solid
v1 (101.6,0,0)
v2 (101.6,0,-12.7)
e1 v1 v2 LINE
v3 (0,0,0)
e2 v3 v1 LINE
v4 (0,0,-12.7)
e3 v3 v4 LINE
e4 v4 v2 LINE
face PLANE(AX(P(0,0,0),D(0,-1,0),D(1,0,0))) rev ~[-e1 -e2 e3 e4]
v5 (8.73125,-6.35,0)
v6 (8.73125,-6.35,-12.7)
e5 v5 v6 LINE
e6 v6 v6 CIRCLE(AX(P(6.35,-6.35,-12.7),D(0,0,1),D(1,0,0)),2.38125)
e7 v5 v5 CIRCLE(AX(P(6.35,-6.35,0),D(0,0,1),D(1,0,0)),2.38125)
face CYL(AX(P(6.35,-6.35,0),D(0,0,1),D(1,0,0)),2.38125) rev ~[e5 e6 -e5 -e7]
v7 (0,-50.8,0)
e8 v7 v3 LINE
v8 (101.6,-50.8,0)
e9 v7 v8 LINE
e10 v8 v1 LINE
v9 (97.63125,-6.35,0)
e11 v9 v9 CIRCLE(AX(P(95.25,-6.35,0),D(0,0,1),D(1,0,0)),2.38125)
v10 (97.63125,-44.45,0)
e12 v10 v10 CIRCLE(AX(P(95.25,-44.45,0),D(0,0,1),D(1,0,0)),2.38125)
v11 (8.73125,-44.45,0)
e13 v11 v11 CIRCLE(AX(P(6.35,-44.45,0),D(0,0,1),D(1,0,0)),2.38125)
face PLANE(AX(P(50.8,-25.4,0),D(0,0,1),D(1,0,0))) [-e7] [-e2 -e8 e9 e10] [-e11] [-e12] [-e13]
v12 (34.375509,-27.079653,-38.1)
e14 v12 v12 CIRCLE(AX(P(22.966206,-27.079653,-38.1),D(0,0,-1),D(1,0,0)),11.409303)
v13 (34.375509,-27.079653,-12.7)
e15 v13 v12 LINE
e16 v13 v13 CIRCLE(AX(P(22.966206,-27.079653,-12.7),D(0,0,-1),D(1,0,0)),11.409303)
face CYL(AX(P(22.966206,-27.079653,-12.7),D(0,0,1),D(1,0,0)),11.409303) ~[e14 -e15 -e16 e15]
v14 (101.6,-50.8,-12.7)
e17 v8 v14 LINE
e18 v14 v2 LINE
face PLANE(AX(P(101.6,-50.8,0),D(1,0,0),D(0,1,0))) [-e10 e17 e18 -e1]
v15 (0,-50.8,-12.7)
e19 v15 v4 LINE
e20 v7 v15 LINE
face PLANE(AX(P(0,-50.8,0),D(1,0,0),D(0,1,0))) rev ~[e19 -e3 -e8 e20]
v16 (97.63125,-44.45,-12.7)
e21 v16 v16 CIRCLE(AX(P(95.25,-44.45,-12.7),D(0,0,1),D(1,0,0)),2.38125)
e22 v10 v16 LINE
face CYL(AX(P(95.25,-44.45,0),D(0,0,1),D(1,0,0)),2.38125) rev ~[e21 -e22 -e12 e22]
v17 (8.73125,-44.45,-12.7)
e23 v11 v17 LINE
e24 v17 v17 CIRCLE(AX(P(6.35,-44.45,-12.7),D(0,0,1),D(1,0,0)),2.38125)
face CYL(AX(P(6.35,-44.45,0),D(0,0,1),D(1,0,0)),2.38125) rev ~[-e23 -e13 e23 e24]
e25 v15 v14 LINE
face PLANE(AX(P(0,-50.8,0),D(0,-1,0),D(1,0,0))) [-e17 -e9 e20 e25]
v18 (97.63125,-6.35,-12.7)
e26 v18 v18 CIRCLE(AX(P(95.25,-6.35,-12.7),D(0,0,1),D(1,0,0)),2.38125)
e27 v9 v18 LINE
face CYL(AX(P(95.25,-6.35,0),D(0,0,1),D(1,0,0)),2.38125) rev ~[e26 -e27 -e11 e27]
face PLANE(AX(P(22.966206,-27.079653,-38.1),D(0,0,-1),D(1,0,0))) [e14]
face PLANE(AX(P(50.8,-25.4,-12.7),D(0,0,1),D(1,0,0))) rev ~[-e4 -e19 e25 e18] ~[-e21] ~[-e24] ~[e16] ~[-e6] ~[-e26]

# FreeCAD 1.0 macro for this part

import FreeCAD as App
import Part
import Sketcher
Q = App.Units.Quantity


def add_polygon(sketch, points):
    """Adds a closed chain of lines whose ends are joined by coincident constraints."""
    first, n = sketch.GeometryCount, len(points)
    for a, b in zip(points, points[1:] + points[:1]):
        sketch.addGeometry(Part.LineSegment(App.Vector(*a, 0), App.Vector(*b, 0)), False)
    for i in range(n):
        sketch.addConstraint(Sketcher.Constraint("Coincident", first + i, 2, first + (i + 1) % n, 1))

doc = App.newDocument("Part")
params = doc.addObject("Spreadsheet::Sheet", "Params")
for row, (alias, value) in enumerate([
    ("sketch1_width", "4 in"),
    ("sketch1_height", "2 in"),
    ("sketch1_diameter", "0.1875 in"),
    ("pad1_length", "0.5 in"),
    ("pad2_length", "1 in"),
], start=1):
    params.set(f"A{row}", alias)
    params.set(f"B{row}", "=" + value)
    params.setAlias(f"B{row}", alias)

body = doc.addObject("PartDesign::Body", "Body")

# Sketch on XY plane
sketch1 = body.newObject("Sketcher::SketchObject", "Sketch")
sketch1.AttachmentSupport = (doc.getObject("XY_Plane"), [""])
sketch1.MapMode = "FlatFace"
add_polygon(sketch1, [(0, 0), (0, -50.8), (101.6, -50.8), (101.6, 0)])  # lines 0-3
sketch1.addGeometry(Part.Circle(App.Vector(6.35, -44.45, 0), App.Vector(0, 0, 1), 2.38125), False)  # 4
sketch1.addGeometry(Part.Circle(App.Vector(95.25, -44.45, 0), App.Vector(0, 0, 1), 2.38125), False)  # 5
sketch1.addGeometry(Part.Circle(App.Vector(6.35, -6.35, 0), App.Vector(0, 0, 1), 2.38125), False)  # 6
sketch1.addGeometry(Part.Circle(App.Vector(95.25, -6.35, 0), App.Vector(0, 0, 1), 2.38125), False)  # 7
sketch1.addConstraint([
    Sketcher.Constraint("Vertical", 0),
    Sketcher.Constraint("Horizontal", 1),
    Sketcher.Constraint("Vertical", 2),
    Sketcher.Constraint("Horizontal", 3),
    Sketcher.Constraint("Coincident", 3, 2, -1, 1),
    Sketcher.Constraint("Equal", 4, 5),
    Sketcher.Constraint("Equal", 5, 6),
    Sketcher.Constraint("Equal", 6, 7),
    Sketcher.Constraint("Horizontal", 4, 3, 5, 3),
    Sketcher.Constraint("Horizontal", 6, 3, 7, 3),
    Sketcher.Constraint("Vertical", 4, 3, 6, 3),
    Sketcher.Constraint("Vertical", 5, 3, 7, 3),
    Sketcher.Constraint("DistanceX", 1, 1, 1, 2, Q("4 in")),
    Sketcher.Constraint("DistanceY", 0, 2, 0, 1, Q("2 in")),
    Sketcher.Constraint("Diameter", 4, Q("0.1875 in")),
    Sketcher.Constraint("DistanceX", 4, 3, 5, 3, Q("3.5 in")),
    Sketcher.Constraint("DistanceY", 4, 3, 6, 3, Q("1.5 in")),
    Sketcher.Constraint("DistanceX", -1, 1, 4, 3, Q("0.25 in")),
    Sketcher.Constraint("DistanceY", 4, 3, -1, 1, Q("1.75 in")),
])
sketch1.setExpression("Constraints[16]", "Params.sketch1_width")
sketch1.setExpression("Constraints[17]", "Params.sketch1_height")
sketch1.setExpression("Constraints[18]", "Params.sketch1_diameter")
pad1 = body.newObject("PartDesign::Pad", "Pad")
pad1.Profile = sketch1
pad1.setExpression("Length", "Params.pad1_length")
pad1.Reversed = True

# Sketch on XY plane
sketch2 = body.newObject("Sketcher::SketchObject", "Sketch001")
sketch2.AttachmentSupport = (doc.getObject("XY_Plane"), [""])
sketch2.MapMode = "FlatFace"
sketch2.AttachmentOffset = App.Placement(App.Vector(0, 0, -0.5 * 25.4), App.Rotation())
sketch2.addGeometry(Part.Circle(App.Vector(22.966206, -27.079653, 0), App.Vector(0, 0, 1), 11.409303), False)
sketch2.addConstraint([
    Sketcher.Constraint("Diameter", 0, Q("22.818606 mm")),
    Sketcher.Constraint("DistanceX", -1, 1, 0, 3, Q("22.966206 mm")),
    Sketcher.Constraint("DistanceY", 0, 3, -1, 1, Q("27.079653 mm")),
])
pad2 = body.newObject("PartDesign::Pad", "Pad001")
pad2.Profile = sketch2
pad2.setExpression("Length", "Params.pad2_length")
pad2.Reversed = True

doc.recompute()
